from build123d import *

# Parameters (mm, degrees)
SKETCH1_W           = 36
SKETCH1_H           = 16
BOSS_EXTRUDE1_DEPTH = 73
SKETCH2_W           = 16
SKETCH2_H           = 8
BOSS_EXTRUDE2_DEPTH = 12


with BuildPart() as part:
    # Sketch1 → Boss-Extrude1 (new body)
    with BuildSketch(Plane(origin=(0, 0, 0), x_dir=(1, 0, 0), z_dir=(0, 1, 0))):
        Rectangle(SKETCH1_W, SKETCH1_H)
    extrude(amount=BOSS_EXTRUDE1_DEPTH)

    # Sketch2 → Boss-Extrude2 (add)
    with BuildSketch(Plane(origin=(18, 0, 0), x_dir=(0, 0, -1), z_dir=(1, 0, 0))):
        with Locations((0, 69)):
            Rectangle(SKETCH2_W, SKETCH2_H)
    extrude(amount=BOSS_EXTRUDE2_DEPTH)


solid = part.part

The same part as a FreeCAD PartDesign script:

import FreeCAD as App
import Part
import Sketcher
from FreeCAD import Vector

doc = App.newDocument("Part")
body = doc.addObject("PartDesign::Body", "Body")

# Sketch on XZ plane
sketch1 = body.newObject("Sketcher::SketchObject", "Sketch")
sketch1.AttachmentSupport = (doc.getObject("XZ_Plane"), [""])
sketch1.MapMode = "FlatFace"
sketch1.addGeometry([
    Part.LineSegment(Vector(-18, -8, 0), Vector(-18, 8, 0)),
    Part.LineSegment(Vector(-18, 8, 0), Vector(18, 8, 0)),
    Part.LineSegment(Vector(18, 8, 0), Vector(18, -8, 0)),
    Part.LineSegment(Vector(18, -8, 0), Vector(-18, -8, 0)),
], False)
sketch1.addConstraint([
    Sketcher.Constraint("Coincident", 0, 2, 1, 1),
    Sketcher.Constraint("Coincident", 1, 2, 2, 1),
    Sketcher.Constraint("Coincident", 2, 2, 3, 1),
    Sketcher.Constraint("Coincident", 3, 2, 0, 1),
    Sketcher.Constraint("Vertical", 0),
    Sketcher.Constraint("Horizontal", 1),
    Sketcher.Constraint("Vertical", 2),
    Sketcher.Constraint("Horizontal", 3),
    Sketcher.Constraint("Symmetric", 0, 2, 2, 2, -1, 1),
    Sketcher.Constraint("DistanceX", 1, 1, 1, 2, 36.0),
    Sketcher.Constraint("DistanceY", 0, 1, 0, 2, 16.0),
])
pad1 = body.newObject("PartDesign::Pad", "Pad")
pad1.Profile = sketch1
pad1.Length = 73
pad1.Reversed = True

# Sketch on YZ plane
sketch2 = body.newObject("Sketcher::SketchObject", "Sketch001")
sketch2.AttachmentSupport = (doc.getObject("YZ_Plane"), [""])
sketch2.MapMode = "FlatFace"
sketch2.AttachmentOffset = App.Placement(Vector(0, 0, 18), App.Rotation())
sketch2.addGeometry([
    Part.LineSegment(Vector(73, 8, 0), Vector(65, 8, 0)),
    Part.LineSegment(Vector(65, 8, 0), Vector(65, -8, 0)),
    Part.LineSegment(Vector(65, -8, 0), Vector(73, -8, 0)),
    Part.LineSegment(Vector(73, -8, 0), Vector(73, 8, 0)),
], False)
sketch2.addConstraint([
    Sketcher.Constraint("Coincident", 0, 2, 1, 1),
    Sketcher.Constraint("Coincident", 1, 2, 2, 1),
    Sketcher.Constraint("Coincident", 2, 2, 3, 1),
    Sketcher.Constraint("Coincident", 3, 2, 0, 1),
    Sketcher.Constraint("Horizontal", 0),
    Sketcher.Constraint("Vertical", 1),
    Sketcher.Constraint("Horizontal", 2),
    Sketcher.Constraint("Vertical", 3),
    Sketcher.Constraint("DistanceX", 0, 2, 0, 1, 8.0),
    Sketcher.Constraint("DistanceY", 1, 2, 1, 1, 16.0),
    Sketcher.Constraint("DistanceX", -1, 1, 0, 2, 65.0),
    Sketcher.Constraint("DistanceY", -1, 1, 0, 2, 8.0),
])
pad2 = body.newObject("PartDesign::Pad", "Pad001")
pad2.Profile = sketch2
pad2.Length = 12

doc.recompute()
